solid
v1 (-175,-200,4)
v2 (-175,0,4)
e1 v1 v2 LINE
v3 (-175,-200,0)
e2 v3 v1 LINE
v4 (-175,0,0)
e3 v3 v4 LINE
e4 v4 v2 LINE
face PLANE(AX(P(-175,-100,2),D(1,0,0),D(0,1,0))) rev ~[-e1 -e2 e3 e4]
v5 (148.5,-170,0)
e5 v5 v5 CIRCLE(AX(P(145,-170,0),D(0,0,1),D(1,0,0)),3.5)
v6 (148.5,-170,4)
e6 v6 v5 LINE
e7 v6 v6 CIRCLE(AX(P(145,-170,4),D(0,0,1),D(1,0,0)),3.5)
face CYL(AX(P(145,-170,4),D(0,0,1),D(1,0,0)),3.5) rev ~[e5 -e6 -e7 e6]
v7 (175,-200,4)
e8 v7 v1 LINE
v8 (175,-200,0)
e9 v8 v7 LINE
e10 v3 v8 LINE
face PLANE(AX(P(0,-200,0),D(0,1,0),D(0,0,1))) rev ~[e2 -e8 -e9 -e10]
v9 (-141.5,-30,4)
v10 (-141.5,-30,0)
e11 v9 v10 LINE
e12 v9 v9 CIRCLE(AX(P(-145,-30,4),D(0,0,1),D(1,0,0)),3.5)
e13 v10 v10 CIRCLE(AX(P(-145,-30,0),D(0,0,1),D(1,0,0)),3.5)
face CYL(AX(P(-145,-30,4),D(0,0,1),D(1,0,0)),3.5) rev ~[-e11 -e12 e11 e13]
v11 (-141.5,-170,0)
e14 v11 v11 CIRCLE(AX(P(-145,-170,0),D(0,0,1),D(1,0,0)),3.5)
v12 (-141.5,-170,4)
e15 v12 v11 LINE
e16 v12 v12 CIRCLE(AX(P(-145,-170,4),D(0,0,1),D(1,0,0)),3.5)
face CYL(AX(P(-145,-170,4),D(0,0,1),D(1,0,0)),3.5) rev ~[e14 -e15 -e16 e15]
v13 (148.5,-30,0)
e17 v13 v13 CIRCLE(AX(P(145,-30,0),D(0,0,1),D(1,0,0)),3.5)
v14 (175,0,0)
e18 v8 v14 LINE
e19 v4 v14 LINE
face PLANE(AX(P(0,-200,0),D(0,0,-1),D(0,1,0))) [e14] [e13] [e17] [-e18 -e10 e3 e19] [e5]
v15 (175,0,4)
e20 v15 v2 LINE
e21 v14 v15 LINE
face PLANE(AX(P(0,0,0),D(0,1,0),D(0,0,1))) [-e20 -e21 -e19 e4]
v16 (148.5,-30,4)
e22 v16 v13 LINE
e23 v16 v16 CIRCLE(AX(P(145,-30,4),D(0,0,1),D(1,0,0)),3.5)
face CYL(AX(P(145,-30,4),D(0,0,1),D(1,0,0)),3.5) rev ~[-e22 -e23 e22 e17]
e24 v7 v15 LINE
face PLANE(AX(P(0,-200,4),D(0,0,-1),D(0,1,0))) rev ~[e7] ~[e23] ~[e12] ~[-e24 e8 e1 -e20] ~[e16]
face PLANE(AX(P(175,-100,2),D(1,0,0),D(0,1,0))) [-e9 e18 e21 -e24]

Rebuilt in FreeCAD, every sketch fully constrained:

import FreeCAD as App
import Part
import Sketcher

doc = App.newDocument("Part")
body = doc.addObject("PartDesign::Body", "Body")

# Sketch on YZ plane
sketch1 = body.newObject("Sketcher::SketchObject", "Sketch")
sketch1.AttachmentSupport = (doc.getObject("YZ_Plane"), [""])
sketch1.MapMode = "FlatFace"
sketch1.addGeometry([
    Part.LineSegment(App.Vector(-200, 4, 0), App.Vector(-200, 0, 0)),
    Part.LineSegment(App.Vector(-200, 0, 0), App.Vector(0, 0, 0)),
    Part.LineSegment(App.Vector(0, 0, 0), App.Vector(0, 4, 0)),
    Part.LineSegment(App.Vector(0, 4, 0), App.Vector(-200, 4, 0)),
], False)
sketch1.addConstraint([
    Sketcher.Constraint("Coincident", 0, 2, 1, 1),
    Sketcher.Constraint("Coincident", 1, 2, 2, 1),
    Sketcher.Constraint("Coincident", 2, 2, 3, 1),
    Sketcher.Constraint("Coincident", 3, 2, 0, 1),
    Sketcher.Constraint("Vertical", 0),
    Sketcher.Constraint("Horizontal", 1),
    Sketcher.Constraint("Vertical", 2),
    Sketcher.Constraint("Horizontal", 3),
    Sketcher.Constraint("Coincident", 1, 2, -1, 1),
    Sketcher.Constraint("DistanceX", 1, 1, 1, 2, 200.0),
    Sketcher.Constraint("DistanceY", 0, 2, 0, 1, 4.0),
])
pad1 = body.newObject("PartDesign::Pad", "Pad")
pad1.Profile = sketch1
pad1.Length = 350
pad1.Midplane = True

# Sketch on XY plane
sketch2 = body.newObject("Sketcher::SketchObject", "Sketch001")
sketch2.AttachmentSupport = (doc.getObject("XY_Plane"), [""])
sketch2.MapMode = "FlatFace"
sketch2.AttachmentOffset = App.Placement(App.Vector(0, 0, 4), App.Rotation())
sketch2.addGeometry([
    Part.Circle(App.Vector(-145, -170, 0), App.Vector(0, 0, 1), 3.5),
    Part.Circle(App.Vector(-145, -30, 0), App.Vector(0, 0, 1), 3.5),
    Part.Circle(App.Vector(145, -30, 0), App.Vector(0, 0, 1), 3.5),
    Part.Circle(App.Vector(145, -170, 0), App.Vector(0, 0, 1), 3.5),
], False)
sketch2.addConstraint([
    Sketcher.Constraint("Equal", 0, 1),
    Sketcher.Constraint("Equal", 1, 2),
    Sketcher.Constraint("Equal", 2, 3),
    Sketcher.Constraint("Symmetric", 1, 3, 2, 3, -2),
    Sketcher.Constraint("Symmetric", 0, 3, 3, 3, -2),
    Sketcher.Constraint("Vertical", 0, 3, 1, 3),
    Sketcher.Constraint("Diameter", 0, 7.0),
    Sketcher.Constraint("DistanceX", 0, 3, -1, 1, 145.0),
    Sketcher.Constraint("DistanceY", 0, 3, -1, 1, 170.0),
    Sketcher.Constraint("DistanceY", 1, 3, -1, 1, 30.0),
])
pocket1 = body.newObject("PartDesign::Pocket", "Pocket")
pocket1.Profile = sketch2
pocket1.Type = "ThroughAll"

doc.recompute()
